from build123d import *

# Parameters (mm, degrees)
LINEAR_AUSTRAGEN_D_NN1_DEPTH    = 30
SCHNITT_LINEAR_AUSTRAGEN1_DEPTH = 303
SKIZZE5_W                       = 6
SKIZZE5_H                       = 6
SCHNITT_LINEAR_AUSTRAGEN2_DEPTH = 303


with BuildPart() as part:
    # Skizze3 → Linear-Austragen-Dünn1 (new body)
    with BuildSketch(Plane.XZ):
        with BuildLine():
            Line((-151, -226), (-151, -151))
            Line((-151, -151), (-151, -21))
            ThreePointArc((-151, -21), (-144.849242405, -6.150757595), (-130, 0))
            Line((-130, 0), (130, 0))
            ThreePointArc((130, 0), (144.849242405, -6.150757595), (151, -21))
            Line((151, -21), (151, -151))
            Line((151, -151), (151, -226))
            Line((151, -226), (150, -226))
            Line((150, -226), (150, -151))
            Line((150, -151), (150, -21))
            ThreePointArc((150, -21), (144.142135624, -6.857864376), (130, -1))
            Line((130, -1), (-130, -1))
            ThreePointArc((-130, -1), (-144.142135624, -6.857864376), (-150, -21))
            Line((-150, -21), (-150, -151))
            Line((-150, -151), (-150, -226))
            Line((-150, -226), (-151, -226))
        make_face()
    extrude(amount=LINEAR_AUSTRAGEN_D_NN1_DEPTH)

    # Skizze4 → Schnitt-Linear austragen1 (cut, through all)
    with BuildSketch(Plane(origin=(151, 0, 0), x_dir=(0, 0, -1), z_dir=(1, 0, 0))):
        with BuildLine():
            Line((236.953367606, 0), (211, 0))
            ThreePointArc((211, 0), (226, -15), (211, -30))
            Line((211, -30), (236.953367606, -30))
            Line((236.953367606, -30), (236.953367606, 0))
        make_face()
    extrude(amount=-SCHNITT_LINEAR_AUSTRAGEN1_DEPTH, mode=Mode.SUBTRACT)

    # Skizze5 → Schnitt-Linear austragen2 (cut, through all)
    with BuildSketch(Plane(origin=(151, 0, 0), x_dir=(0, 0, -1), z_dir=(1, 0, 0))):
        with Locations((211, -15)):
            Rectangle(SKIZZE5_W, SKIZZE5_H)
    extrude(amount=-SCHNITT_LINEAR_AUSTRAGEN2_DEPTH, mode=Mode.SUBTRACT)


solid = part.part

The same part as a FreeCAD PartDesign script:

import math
import FreeCAD as App
import Part
import Sketcher

doc = App.newDocument("Part")
body = doc.addObject("PartDesign::Body", "Body")

# Sketch on XZ plane
sketch1 = doc.addObject("Sketcher::SketchObject", "Sketch")
body.addObject(sketch1)
sketch1.AttachmentSupport = (doc.XZ_Plane, [""])
sketch1.MapMode = "FlatFace"
sketch1.addGeometry([
    Part.LineSegment(App.Vector(-151, -21, 0), App.Vector(-151, -226, 0)),  # 0
    Part.LineSegment(App.Vector(-151, -226, 0), App.Vector(-150, -226, 0)),  # 1
    Part.LineSegment(App.Vector(-150, -226, 0), App.Vector(-150, -21, 0)),  # 2
    Part.ArcOfCircle(Part.Circle(App.Vector(-130, -21, 0), App.Vector(0, 0, 1), 20), math.radians(90), math.radians(180)),  # 3
    Part.LineSegment(App.Vector(-130, -1, 0), App.Vector(130, -1, 0)),  # 4
    Part.ArcOfCircle(Part.Circle(App.Vector(130, -21, 0), App.Vector(0, 0, 1), 20), math.radians(0), math.radians(90)),  # 5
    Part.LineSegment(App.Vector(150, -21, 0), App.Vector(150, -226, 0)),  # 6
    Part.LineSegment(App.Vector(150, -226, 0), App.Vector(151, -226, 0)),  # 7
    Part.LineSegment(App.Vector(151, -226, 0), App.Vector(151, -21, 0)),  # 8
    Part.ArcOfCircle(Part.Circle(App.Vector(130, -21, 0), App.Vector(0, 0, 1), 21), math.radians(0), math.radians(90)),  # 9
    Part.LineSegment(App.Vector(130, 0, 0), App.Vector(-130, 0, 0)),  # 10
    Part.ArcOfCircle(Part.Circle(App.Vector(-130, -21, 0), App.Vector(0, 0, 1), 21), math.radians(90), math.radians(180)),  # 11
], False)
sketch1.addConstraint([
    Sketcher.Constraint("Coincident", 0, 2, 1, 1),
    Sketcher.Constraint("Coincident", 1, 2, 2, 1),
    Sketcher.Constraint("Tangent", 2, 2, 3, 2),
    Sketcher.Constraint("Tangent", 3, 1, 4, 1),
    Sketcher.Constraint("Tangent", 4, 2, 5, 2),
    Sketcher.Constraint("Tangent", 5, 1, 6, 1),
    Sketcher.Constraint("Coincident", 6, 2, 7, 1),
    Sketcher.Constraint("Coincident", 7, 2, 8, 1),
    Sketcher.Constraint("Tangent", 8, 2, 9, 1),
    Sketcher.Constraint("Tangent", 9, 2, 10, 1),
    Sketcher.Constraint("Tangent", 10, 2, 11, 1),
    Sketcher.Constraint("Tangent", 11, 2, 0, 1),
    Sketcher.Constraint("Vertical", 0),
    Sketcher.Constraint("Horizontal", 1),
    Sketcher.Constraint("Vertical", 2),
    Sketcher.Constraint("Horizontal", 4),
    Sketcher.Constraint("Vertical", 6),
    Sketcher.Constraint("Horizontal", 7),
    Sketcher.Constraint("Vertical", 8),
    Sketcher.Constraint("Horizontal", 10),
    Sketcher.Constraint("Coincident", 9, 3, 5, 3),
    Sketcher.Constraint("Coincident", 11, 3, 3, 3),
    Sketcher.Constraint("Equal", 3, 5),
    Sketcher.Constraint("Symmetric", 9, 2, 10, 2, -1, 1),
    Sketcher.Constraint("Horizontal", 1, 2, 6, 2),
    Sketcher.Constraint("Radius", 3, 20.0),
    Sketcher.Constraint("Radius", 9, 21.0),
    Sketcher.Constraint("DistanceX", 4, 1, 4, 2, 260.0),
    Sketcher.Constraint("DistanceY", 0, 2, 0, 1, 205.0),
])
pad1 = doc.addObject("PartDesign::Pad", "Pad")
body.addObject(pad1)
pad1.Profile = sketch1
pad1.Length = 30

# Sketch on YZ plane
sketch2 = doc.addObject("Sketcher::SketchObject", "Sketch001")
body.addObject(sketch2)
sketch2.AttachmentSupport = (doc.YZ_Plane, [""])
sketch2.MapMode = "FlatFace"
sketch2.AttachmentOffset = App.Placement(App.Vector(0, 0, 151), App.Rotation())
sketch2.addGeometry([
    Part.LineSegment(App.Vector(0, -237, 0), App.Vector(0, -211, 0)),
    Part.ArcOfCircle(Part.Circle(App.Vector(-15, -211, 0), App.Vector(0, 0, 1), 15), math.radians(180), math.radians(360)),
    Part.LineSegment(App.Vector(-30, -211, 0), App.Vector(-30, -237, 0)),
    Part.LineSegment(App.Vector(-30, -237, 0), App.Vector(0, -237, 0)),
], False)
sketch2.addConstraint([
    Sketcher.Constraint("Tangent", 0, 2, 1, 2),
    Sketcher.Constraint("Tangent", 1, 1, 2, 1),
    Sketcher.Constraint("Coincident", 2, 2, 3, 1),
    Sketcher.Constraint("Coincident", 3, 2, 0, 1),
    Sketcher.Constraint("Vertical", 0),
    Sketcher.Constraint("Vertical", 2),
    Sketcher.Constraint("Horizontal", 3),
    Sketcher.Constraint("PointOnObject", 0, 2, -2),
    Sketcher.Constraint("Radius", 1, 15.0),
    Sketcher.Constraint("DistanceY", 1, 3, -1, 1, 211.0),
    Sketcher.Constraint("DistanceY", 0, 1, 0, 2, 25.953368),
])
pocket1 = doc.addObject("PartDesign::Pocket", "Pocket")
body.addObject(pocket1)
pocket1.Profile = sketch2
pocket1.Type = "ThroughAll"

# Sketch on YZ plane
sketch3 = doc.addObject("Sketcher::SketchObject", "Sketch002")
body.addObject(sketch3)
sketch3.AttachmentSupport = (doc.YZ_Plane, [""])
sketch3.MapMode = "FlatFace"
sketch3.AttachmentOffset = App.Placement(App.Vector(0, 0, 151), App.Rotation())
sketch3.addGeometry([
    Part.LineSegment(App.Vector(-12, -208, 0), App.Vector(-18, -208, 0)),
    Part.LineSegment(App.Vector(-18, -208, 0), App.Vector(-18, -214, 0)),
    Part.LineSegment(App.Vector(-18, -214, 0), App.Vector(-12, -214, 0)),
    Part.LineSegment(App.Vector(-12, -214, 0), App.Vector(-12, -208, 0)),
], False)
sketch3.addConstraint([
    Sketcher.Constraint("Coincident", 0, 2, 1, 1),
    Sketcher.Constraint("Coincident", 1, 2, 2, 1),
    Sketcher.Constraint("Coincident", 2, 2, 3, 1),
    Sketcher.Constraint("Coincident", 3, 2, 0, 1),
    Sketcher.Constraint("Horizontal", 0),
    Sketcher.Constraint("Vertical", 1),
    Sketcher.Constraint("Horizontal", 2),
    Sketcher.Constraint("Vertical", 3),
    Sketcher.Constraint("Equal", 2, 1),
    Sketcher.Constraint("DistanceX", 0, 2, 0, 1, 6.0),
    Sketcher.Constraint("DistanceX", 0, 2, -1, 1, 18.0),
    Sketcher.Constraint("DistanceY", 0, 2, -1, 1, 208.0),
])
pocket2 = doc.addObject("PartDesign::Pocket", "Pocket001")
body.addObject(pocket2)
pocket2.Profile = sketch3
pocket2.Type = "ThroughAll"

doc.recompute()
